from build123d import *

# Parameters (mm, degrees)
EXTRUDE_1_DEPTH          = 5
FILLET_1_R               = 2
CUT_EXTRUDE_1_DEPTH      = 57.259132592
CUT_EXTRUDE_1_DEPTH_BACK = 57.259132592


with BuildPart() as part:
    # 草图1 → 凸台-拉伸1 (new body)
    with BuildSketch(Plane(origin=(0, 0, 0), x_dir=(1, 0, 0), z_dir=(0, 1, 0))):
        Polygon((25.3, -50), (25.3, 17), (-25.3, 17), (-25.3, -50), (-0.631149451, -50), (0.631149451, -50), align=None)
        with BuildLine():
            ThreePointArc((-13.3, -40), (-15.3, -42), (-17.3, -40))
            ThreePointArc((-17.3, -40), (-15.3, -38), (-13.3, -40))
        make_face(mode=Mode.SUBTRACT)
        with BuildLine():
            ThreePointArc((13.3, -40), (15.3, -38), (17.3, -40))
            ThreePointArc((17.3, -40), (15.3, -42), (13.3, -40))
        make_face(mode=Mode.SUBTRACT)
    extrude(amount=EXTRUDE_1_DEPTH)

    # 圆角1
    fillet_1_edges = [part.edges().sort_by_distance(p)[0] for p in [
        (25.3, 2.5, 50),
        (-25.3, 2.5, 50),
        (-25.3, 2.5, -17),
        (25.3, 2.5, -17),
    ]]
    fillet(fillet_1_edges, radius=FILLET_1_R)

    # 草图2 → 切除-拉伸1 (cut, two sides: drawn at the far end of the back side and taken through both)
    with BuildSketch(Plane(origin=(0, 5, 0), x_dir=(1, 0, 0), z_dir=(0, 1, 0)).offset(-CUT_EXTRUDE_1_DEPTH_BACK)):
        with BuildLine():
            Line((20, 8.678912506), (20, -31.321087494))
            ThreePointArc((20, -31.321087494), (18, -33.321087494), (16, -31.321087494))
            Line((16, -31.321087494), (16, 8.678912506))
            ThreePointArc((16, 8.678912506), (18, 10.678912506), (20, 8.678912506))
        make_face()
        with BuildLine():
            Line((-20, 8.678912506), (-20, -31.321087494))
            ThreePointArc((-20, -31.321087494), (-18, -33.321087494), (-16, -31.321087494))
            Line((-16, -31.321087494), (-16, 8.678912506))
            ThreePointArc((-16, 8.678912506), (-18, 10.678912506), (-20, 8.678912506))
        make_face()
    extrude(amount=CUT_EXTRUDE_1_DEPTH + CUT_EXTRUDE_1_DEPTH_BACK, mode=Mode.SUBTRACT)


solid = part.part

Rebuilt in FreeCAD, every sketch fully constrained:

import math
import FreeCAD as App
import Part
import Sketcher
Q = App.Units.Quantity


def edges_at(feature, points):
    """Names of the edges that pass closest to the given points."""
    edges = feature.Shape.Edges
    near = lambda p: min(range(len(edges)), key=lambda i: edges[i].distToShape(Part.Vertex(*p))[0])
    return sorted({f"Edge{near(p) + 1}" for p in points})


def add_polygon(sketch, points):
    """Adds a closed chain of lines whose ends are joined by coincident constraints."""
    first, n = sketch.GeometryCount, len(points)
    for a, b in zip(points, points[1:] + points[:1]):
        sketch.addGeometry(Part.LineSegment(App.Vector(*a, 0), App.Vector(*b, 0)), False)
    for i in range(n):
        sketch.addConstraint(Sketcher.Constraint("Coincident", first + i, 2, first + (i + 1) % n, 1))

doc = App.newDocument("Part")
params = doc.addObject("Spreadsheet::Sheet", "Params")
for row, (alias, value) in enumerate([
    ("sketch1_diameter", "4 mm"),
    ("sketch1_height", "67 mm"),
    ("sketch1_width", "50.6 mm"),
    ("pad1_length", "5 mm"),
    ("fillet_radius", "2 mm"),
    ("sketch2_radius", "2 mm"),
    ("sketch2_height", "40 mm"),
], start=1):
    params.set(f"A{row}", alias)
    params.set(f"B{row}", "=" + value)
    params.setAlias(f"B{row}", alias)

body = doc.addObject("PartDesign::Body", "Body")

# Sketch on XZ plane
sketch1 = doc.addObject("Sketcher::SketchObject", "Sketch")
body.addObject(sketch1)
sketch1.AttachmentSupport = (doc.XZ_Plane, [""])
sketch1.MapMode = "FlatFace"
add_polygon(sketch1, [(25.3, 50), (25.3, -17), (-25.3, -17), (-25.3, 50)])  # lines 0-3
sketch1.addGeometry(Part.Circle(App.Vector(-15.3, 40, 0), App.Vector(0, 0, 1), 2), False)  # 4
sketch1.addGeometry(Part.Circle(App.Vector(15.3, 40, 0), App.Vector(0, 0, 1), 2), False)  # 5
sketch1.addConstraint(Sketcher.Constraint("Vertical", 0))
sketch1.addConstraint(Sketcher.Constraint("Horizontal", 1))
sketch1.addConstraint(Sketcher.Constraint("Vertical", 2))
sketch1.addConstraint(Sketcher.Constraint("Horizontal", 3))
sketch1.addConstraint(Sketcher.Constraint("Equal", 4, 5))
sketch1.addConstraint(Sketcher.Constraint("Symmetric", 4, 3, 5, 3, -2))
sketch1.addConstraint(Sketcher.Constraint("Diameter", 4, Q("4 mm")))
sketch1.addConstraint(Sketcher.Constraint("DistanceY", 0, 2, 0, 1, Q("67 mm")))
sketch1.addConstraint(Sketcher.Constraint("DistanceX", 1, 2, 1, 1, Q("50.6 mm")))
sketch1.addConstraint(Sketcher.Constraint("DistanceY", -1, 1, 4, 3, Q("40 mm")))
sketch1.addConstraint(Sketcher.Constraint("DistanceY", 0, 2, -1, 1, Q("17 mm")))
sketch1.addConstraint(Sketcher.Constraint("DistanceX", 5, 3, 0, 2, Q("10 mm")))
sketch1.addConstraint(Sketcher.Constraint("DistanceX", 1, 2, 4, 3, Q("10 mm")))
sketch1.setExpression("Constraints[10]", "Params.sketch1_diameter")
sketch1.setExpression("Constraints[11]", "Params.sketch1_height")
sketch1.setExpression("Constraints[12]", "Params.sketch1_width")
pad1 = doc.addObject("PartDesign::Pad", "Pad")
body.addObject(pad1)
pad1.Profile = sketch1
pad1.setExpression("Length", "Params.pad1_length")
pad1.Reversed = True
doc.recompute()

fillet = doc.addObject("PartDesign::Fillet", "Fillet")
body.addObject(fillet)
fillet.Base = (pad1, edges_at(pad1, [
    (25.3, 2.5, 50),
    (-25.3, 2.5, 50),
    (-25.3, 2.5, -17),
    (25.3, 2.5, -17),
]))
fillet.setExpression("Radius", "Params.fillet_radius")

# Sketch on XZ plane
sketch2 = doc.addObject("Sketcher::SketchObject", "Sketch001")
body.addObject(sketch2)
sketch2.AttachmentSupport = (doc.XZ_Plane, [""])
sketch2.MapMode = "FlatFace"
sketch2.AttachmentOffset = App.Placement(App.Vector(0, 0, -5), App.Rotation())
sketch2.addGeometry(Part.LineSegment(App.Vector(20, 31.321087, 0), App.Vector(20, -8.678913, 0)), False)
sketch2.addGeometry(Part.ArcOfCircle(Part.Circle(App.Vector(18, -8.678913, 0), App.Vector(0, 0, 1), 2), math.radians(180), math.radians(360)), False)
sketch2.addGeometry(Part.LineSegment(App.Vector(16, -8.678913, 0), App.Vector(16, 31.321087, 0)), False)
sketch2.addGeometry(Part.ArcOfCircle(Part.Circle(App.Vector(18, 31.321087, 0), App.Vector(0, 0, 1), 2), math.radians(0), math.radians(180)), False)
sketch2.addGeometry(Part.LineSegment(App.Vector(-20, -8.678913, 0), App.Vector(-20, 31.321087, 0)), False)
sketch2.addGeometry(Part.ArcOfCircle(Part.Circle(App.Vector(-18, 31.321087, 0), App.Vector(0, 0, 1), 2), math.radians(0), math.radians(180)), False)
sketch2.addGeometry(Part.LineSegment(App.Vector(-16, 31.321087, 0), App.Vector(-16, -8.678913, 0)), False)
sketch2.addGeometry(Part.ArcOfCircle(Part.Circle(App.Vector(-18, -8.678913, 0), App.Vector(0, 0, 1), 2), math.radians(180), math.radians(360)), False)
sketch2.addConstraint(Sketcher.Constraint("Tangent", 0, 2, 1, 2))
sketch2.addConstraint(Sketcher.Constraint("Tangent", 1, 1, 2, 1))
sketch2.addConstraint(Sketcher.Constraint("Tangent", 2, 2, 3, 2))
sketch2.addConstraint(Sketcher.Constraint("Tangent", 3, 1, 0, 1))
sketch2.addConstraint(Sketcher.Constraint("Tangent", 4, 2, 5, 2))
sketch2.addConstraint(Sketcher.Constraint("Tangent", 5, 1, 6, 1))
sketch2.addConstraint(Sketcher.Constraint("Tangent", 6, 2, 7, 2))
sketch2.addConstraint(Sketcher.Constraint("Tangent", 7, 1, 4, 1))
sketch2.addConstraint(Sketcher.Constraint("Vertical", 0))
sketch2.addConstraint(Sketcher.Constraint("Vertical", 2))
sketch2.addConstraint(Sketcher.Constraint("Vertical", 4))
sketch2.addConstraint(Sketcher.Constraint("Vertical", 6))
sketch2.addConstraint(Sketcher.Constraint("Equal", 3, 5))
sketch2.addConstraint(Sketcher.Constraint("Symmetric", 3, 3, 5, 3, -2))
sketch2.addConstraint(Sketcher.Constraint("Horizontal", 1, 3, 7, 3))
sketch2.addConstraint(Sketcher.Constraint("Radius", 1, Q("2 mm")))
sketch2.addConstraint(Sketcher.Constraint("DistanceY", 0, 2, 0, 1, Q("40 mm")))
sketch2.addConstraint(Sketcher.Constraint("DistanceX", -1, 1, 1, 3, Q("18 mm")))
sketch2.addConstraint(Sketcher.Constraint("DistanceY", 1, 3, -1, 1, Q("8.678913 mm")))
sketch2.setExpression("Constraints[15]", "Params.sketch2_radius")
sketch2.setExpression("Constraints[16]", "Params.sketch2_height")
pocket1 = doc.addObject("PartDesign::Pocket", "Pocket")
body.addObject(pocket1)
pocket1.Profile = sketch2
pocket1.Type = "ThroughAll"
pocket1.Midplane = True

doc.recompute()
